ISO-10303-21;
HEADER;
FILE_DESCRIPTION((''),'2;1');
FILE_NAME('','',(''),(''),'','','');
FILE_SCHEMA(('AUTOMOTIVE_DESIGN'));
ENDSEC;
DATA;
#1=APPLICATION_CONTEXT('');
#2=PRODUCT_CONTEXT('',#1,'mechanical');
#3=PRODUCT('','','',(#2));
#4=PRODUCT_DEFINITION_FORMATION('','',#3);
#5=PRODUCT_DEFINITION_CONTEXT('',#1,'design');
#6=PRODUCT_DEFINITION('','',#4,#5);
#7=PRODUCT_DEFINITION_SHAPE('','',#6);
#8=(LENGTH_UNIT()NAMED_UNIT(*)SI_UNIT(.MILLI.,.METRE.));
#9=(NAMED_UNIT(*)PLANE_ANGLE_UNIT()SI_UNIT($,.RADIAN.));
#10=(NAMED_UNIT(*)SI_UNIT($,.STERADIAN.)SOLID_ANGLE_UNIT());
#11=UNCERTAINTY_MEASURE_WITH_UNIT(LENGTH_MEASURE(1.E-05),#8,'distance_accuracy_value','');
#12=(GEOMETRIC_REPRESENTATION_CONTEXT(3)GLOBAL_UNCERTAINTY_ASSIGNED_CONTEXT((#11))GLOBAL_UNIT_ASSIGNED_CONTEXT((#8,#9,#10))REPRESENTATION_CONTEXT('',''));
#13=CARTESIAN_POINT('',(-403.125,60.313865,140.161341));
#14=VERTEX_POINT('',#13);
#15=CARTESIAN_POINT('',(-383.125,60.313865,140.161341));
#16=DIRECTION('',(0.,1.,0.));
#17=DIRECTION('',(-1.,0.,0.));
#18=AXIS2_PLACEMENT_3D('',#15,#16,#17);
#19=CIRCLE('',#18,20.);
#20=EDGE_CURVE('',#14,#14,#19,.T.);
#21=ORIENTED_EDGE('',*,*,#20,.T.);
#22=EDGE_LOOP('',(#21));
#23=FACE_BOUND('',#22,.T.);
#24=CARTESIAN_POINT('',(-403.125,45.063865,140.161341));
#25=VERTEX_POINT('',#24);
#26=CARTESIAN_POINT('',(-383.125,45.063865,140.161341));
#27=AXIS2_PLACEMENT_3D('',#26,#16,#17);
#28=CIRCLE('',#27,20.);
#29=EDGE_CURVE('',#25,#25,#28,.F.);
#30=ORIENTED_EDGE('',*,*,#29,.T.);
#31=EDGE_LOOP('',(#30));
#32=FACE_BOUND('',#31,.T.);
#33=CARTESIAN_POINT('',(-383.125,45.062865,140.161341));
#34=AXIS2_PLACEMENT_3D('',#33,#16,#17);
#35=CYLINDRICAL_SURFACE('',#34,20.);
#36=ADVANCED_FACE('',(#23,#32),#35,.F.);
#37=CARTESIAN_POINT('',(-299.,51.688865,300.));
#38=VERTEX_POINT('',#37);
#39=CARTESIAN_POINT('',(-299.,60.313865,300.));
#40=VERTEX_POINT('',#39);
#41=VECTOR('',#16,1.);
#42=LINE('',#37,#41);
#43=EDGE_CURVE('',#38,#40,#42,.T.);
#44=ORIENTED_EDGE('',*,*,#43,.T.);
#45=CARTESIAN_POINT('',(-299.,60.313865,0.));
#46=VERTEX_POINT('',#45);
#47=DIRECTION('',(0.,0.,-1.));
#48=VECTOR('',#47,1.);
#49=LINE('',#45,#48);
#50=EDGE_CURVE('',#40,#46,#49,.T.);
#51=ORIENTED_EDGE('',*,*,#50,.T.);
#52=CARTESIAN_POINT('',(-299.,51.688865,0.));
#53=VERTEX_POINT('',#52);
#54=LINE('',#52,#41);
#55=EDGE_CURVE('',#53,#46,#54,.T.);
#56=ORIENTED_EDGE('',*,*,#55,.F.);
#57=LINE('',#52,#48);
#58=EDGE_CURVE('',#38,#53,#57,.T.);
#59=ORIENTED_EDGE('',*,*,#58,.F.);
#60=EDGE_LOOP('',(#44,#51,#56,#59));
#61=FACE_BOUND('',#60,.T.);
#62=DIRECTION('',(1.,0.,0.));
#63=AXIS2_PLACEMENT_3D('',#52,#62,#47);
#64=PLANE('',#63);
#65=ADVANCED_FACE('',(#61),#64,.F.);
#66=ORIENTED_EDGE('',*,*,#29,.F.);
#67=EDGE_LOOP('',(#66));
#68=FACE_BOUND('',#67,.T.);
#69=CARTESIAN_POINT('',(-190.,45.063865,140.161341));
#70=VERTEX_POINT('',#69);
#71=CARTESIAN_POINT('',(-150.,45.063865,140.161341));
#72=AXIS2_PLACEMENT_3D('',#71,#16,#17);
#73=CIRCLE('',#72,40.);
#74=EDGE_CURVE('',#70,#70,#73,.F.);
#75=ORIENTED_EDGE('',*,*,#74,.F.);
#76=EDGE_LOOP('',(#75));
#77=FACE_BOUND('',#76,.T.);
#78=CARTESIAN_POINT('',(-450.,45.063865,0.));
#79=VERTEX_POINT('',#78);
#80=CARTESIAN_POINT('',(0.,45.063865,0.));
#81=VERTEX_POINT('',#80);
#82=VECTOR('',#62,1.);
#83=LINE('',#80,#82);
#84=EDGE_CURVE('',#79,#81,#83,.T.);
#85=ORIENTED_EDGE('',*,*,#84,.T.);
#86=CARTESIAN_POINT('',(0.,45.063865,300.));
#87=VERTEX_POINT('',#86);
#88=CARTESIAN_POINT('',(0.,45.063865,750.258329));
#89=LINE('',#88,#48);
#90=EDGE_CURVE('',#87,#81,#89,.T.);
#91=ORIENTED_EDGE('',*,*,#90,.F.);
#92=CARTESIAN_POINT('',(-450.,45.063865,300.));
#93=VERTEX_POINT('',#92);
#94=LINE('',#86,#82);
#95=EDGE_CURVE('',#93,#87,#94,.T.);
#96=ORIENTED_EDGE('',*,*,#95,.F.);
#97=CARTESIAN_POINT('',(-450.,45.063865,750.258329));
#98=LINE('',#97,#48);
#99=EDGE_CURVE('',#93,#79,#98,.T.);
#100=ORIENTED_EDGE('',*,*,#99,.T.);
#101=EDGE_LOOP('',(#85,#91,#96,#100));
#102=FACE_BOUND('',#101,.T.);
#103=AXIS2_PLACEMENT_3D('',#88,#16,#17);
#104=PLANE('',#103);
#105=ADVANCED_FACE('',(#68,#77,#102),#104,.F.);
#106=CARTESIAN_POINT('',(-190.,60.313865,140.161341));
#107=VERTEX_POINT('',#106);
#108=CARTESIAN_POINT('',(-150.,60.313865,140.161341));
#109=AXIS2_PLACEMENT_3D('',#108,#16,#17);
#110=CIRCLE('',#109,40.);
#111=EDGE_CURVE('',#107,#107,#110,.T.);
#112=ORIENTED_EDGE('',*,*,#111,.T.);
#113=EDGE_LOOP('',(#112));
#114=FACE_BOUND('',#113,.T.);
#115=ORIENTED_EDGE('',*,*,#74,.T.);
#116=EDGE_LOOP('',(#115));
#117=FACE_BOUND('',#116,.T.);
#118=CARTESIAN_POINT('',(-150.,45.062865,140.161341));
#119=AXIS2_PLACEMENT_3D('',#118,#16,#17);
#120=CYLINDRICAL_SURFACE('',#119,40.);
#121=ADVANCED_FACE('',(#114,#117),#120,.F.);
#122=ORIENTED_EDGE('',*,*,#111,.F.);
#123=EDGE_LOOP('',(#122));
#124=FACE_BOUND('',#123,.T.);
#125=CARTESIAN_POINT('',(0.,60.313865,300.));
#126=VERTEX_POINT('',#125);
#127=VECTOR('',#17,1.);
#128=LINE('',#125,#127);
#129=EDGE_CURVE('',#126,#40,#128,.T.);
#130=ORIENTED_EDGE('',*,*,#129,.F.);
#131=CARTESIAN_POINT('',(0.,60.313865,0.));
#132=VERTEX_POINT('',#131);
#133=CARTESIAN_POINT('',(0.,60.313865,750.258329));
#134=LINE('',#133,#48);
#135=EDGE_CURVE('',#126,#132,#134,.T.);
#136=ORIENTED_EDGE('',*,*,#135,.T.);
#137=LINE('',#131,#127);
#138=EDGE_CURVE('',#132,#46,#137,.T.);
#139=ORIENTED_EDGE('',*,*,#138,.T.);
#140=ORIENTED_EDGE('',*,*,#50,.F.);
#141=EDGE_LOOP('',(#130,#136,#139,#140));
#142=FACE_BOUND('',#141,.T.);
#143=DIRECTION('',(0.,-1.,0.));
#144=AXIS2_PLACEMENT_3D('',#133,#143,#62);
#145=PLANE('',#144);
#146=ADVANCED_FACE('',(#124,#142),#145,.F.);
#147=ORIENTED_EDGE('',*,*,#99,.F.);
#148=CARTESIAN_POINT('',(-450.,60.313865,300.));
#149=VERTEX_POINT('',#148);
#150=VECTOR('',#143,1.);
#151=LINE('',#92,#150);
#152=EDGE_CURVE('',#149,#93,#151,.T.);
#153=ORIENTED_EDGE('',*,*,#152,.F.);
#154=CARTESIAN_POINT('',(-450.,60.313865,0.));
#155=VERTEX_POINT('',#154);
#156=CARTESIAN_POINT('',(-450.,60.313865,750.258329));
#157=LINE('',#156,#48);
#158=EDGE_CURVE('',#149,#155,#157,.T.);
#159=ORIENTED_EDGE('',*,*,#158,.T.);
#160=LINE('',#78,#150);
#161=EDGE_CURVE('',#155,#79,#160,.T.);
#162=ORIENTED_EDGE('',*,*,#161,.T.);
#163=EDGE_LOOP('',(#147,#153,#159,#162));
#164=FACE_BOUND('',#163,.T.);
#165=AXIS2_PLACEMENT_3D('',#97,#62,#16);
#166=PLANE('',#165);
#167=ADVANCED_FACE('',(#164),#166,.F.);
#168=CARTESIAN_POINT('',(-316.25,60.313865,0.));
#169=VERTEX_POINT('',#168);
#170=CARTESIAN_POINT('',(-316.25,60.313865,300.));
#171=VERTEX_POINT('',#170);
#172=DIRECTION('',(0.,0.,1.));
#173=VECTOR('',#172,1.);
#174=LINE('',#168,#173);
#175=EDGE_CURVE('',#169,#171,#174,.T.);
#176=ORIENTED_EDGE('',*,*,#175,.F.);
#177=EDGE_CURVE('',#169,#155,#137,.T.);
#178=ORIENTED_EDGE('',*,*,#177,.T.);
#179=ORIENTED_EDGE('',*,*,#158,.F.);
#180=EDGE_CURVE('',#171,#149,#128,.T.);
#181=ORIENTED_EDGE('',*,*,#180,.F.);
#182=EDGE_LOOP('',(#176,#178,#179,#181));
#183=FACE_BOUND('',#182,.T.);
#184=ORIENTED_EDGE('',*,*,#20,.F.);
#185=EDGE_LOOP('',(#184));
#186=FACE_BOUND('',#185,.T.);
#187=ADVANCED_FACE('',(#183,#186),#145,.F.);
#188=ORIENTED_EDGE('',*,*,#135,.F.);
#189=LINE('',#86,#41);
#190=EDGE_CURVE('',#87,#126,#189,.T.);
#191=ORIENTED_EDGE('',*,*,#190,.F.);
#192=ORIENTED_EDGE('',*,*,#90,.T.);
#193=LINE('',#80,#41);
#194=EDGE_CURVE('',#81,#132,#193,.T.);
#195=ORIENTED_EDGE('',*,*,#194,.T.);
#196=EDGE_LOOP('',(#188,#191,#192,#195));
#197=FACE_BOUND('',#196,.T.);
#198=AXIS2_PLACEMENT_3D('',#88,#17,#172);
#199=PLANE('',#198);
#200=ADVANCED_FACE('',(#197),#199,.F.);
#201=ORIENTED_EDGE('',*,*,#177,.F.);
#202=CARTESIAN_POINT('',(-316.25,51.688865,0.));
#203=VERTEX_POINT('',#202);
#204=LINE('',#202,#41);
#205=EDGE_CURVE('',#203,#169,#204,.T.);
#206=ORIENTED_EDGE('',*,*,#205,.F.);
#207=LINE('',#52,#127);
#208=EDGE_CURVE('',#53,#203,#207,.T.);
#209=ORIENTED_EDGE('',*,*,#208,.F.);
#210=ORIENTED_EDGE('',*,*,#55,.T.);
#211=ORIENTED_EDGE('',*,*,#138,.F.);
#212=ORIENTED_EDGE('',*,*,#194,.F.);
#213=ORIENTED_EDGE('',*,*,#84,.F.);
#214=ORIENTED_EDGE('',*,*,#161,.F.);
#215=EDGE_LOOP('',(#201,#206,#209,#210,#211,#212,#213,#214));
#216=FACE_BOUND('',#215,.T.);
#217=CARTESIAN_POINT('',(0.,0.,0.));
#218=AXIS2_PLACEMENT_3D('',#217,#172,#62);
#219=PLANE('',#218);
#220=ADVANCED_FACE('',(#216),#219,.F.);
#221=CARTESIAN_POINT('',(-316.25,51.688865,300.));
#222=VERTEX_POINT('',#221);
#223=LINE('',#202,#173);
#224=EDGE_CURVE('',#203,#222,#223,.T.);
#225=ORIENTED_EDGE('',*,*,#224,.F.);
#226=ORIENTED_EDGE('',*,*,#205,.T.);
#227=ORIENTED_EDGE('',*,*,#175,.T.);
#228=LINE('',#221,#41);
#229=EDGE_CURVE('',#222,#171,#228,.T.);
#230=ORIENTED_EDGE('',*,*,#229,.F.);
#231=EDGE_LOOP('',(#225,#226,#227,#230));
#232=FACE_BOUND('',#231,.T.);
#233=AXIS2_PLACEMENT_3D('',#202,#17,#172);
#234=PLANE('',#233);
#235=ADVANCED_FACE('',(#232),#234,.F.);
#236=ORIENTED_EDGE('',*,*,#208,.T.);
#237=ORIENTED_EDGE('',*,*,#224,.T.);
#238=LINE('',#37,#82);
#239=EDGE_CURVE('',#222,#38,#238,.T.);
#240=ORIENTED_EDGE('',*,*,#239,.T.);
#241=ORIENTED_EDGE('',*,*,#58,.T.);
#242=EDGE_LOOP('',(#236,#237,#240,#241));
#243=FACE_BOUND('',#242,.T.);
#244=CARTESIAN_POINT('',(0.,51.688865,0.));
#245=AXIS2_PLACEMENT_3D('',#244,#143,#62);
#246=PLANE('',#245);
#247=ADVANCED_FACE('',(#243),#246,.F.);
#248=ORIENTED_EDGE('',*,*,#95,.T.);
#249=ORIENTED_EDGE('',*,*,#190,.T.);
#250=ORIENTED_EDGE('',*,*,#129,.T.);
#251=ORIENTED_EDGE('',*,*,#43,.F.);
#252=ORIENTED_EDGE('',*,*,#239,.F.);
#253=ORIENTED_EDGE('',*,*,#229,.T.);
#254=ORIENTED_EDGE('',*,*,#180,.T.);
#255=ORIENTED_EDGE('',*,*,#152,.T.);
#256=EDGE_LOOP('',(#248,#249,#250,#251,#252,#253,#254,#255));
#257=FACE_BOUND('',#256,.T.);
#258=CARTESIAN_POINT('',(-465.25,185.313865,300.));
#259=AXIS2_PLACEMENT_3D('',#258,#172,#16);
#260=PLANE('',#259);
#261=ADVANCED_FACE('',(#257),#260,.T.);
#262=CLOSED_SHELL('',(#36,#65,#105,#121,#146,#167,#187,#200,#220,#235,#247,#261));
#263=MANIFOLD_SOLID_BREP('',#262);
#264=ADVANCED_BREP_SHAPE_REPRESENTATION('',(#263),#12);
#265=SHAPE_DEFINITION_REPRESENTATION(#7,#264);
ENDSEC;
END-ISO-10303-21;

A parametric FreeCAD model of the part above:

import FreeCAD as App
import Part
import Sketcher
from FreeCAD import Vector
Q = App.Units.Quantity


def add_polygon(sketch, points):
    """Adds a closed chain of lines whose ends are joined by coincident constraints."""
    first, n = sketch.GeometryCount, len(points)
    for a, b in zip(points, points[1:] + points[:1]):
        sketch.addGeometry(Part.LineSegment(App.Vector(*a, 0), App.Vector(*b, 0)), False)
    for i in range(n):
        sketch.addConstraint(Sketcher.Constraint("Coincident", first + i, 2, first + (i + 1) % n, 1))

doc = App.newDocument("Part")
params = doc.addObject("Spreadsheet::Sheet", "Params")
for row, (alias, value) in enumerate([
    ("sketch1_width", "450 mm"),
    ("sketch1_height", "15.25 mm"),
    ("pad1_length", "300 mm"),
    ("sketch2_height", "300 mm"),
    ("sketch2_width", "17.25 mm"),
    ("pocket1_length", "8.625 mm"),
    ("sketch3_diameter", "80 mm"),
    ("sketch4_diameter", "40 mm"),
], start=1):
    params.set(f"A{row}", alias)
    params.set(f"B{row}", "=" + value)
    params.setAlias(f"B{row}", alias)

body = doc.addObject("PartDesign::Body", "Body")

# Sketch on XY plane
sketch1 = body.newObject("Sketcher::SketchObject", "Sketch")
sketch1.AttachmentSupport = (doc.getObject("XY_Plane"), [""])
sketch1.MapMode = "FlatFace"
add_polygon(sketch1, [(-450, 60), (-450, 45), (0, 45), (0, 60)])  # lines 0-3
sketch1.addConstraint(Sketcher.Constraint("Vertical", 0))
sketch1.addConstraint(Sketcher.Constraint("Horizontal", 1))
sketch1.addConstraint(Sketcher.Constraint("Vertical", 2))
sketch1.addConstraint(Sketcher.Constraint("Horizontal", 3))
sketch1.addConstraint(Sketcher.Constraint("PointOnObject", 1, 2, -2))
sketch1.addConstraint(Sketcher.Constraint("DistanceX", 1, 1, 1, 2, Q("450 mm")))
sketch1.addConstraint(Sketcher.Constraint("DistanceY", 0, 2, 0, 1, Q("15.25 mm")))
sketch1.addConstraint(Sketcher.Constraint("DistanceY", -1, 1, 0, 2, Q("45.063865 mm")))
sketch1.setExpression("Constraints[9]", "Params.sketch1_width")
sketch1.setExpression("Constraints[10]", "Params.sketch1_height")
pad1 = body.newObject("PartDesign::Pad", "Pad")
pad1.Profile = sketch1
pad1.setExpression("Length", "Params.pad1_length")

# Sketch on XZ plane
sketch2 = body.newObject("Sketcher::SketchObject", "Sketch001")
sketch2.AttachmentSupport = (doc.getObject("XZ_Plane"), [""])
sketch2.MapMode = "FlatFace"
sketch2.AttachmentOffset = App.Placement(Vector(0, 0, -60.313865), App.Rotation())
add_polygon(sketch2, [(-316, 0), (-316, 300), (-299, 300), (-299, 0)])  # lines 0-3
sketch2.addConstraint(Sketcher.Constraint("Vertical", 0))
sketch2.addConstraint(Sketcher.Constraint("Horizontal", 1))
sketch2.addConstraint(Sketcher.Constraint("Vertical", 2))
sketch2.addConstraint(Sketcher.Constraint("Horizontal", 3))
sketch2.addConstraint(Sketcher.Constraint("PointOnObject", 2, 2, -1))
sketch2.addConstraint(Sketcher.Constraint("DistanceY", 0, 1, 0, 2, Q("300 mm")))
sketch2.addConstraint(Sketcher.Constraint("DistanceX", 1, 2, -1, 1, Q("299 mm")))
sketch2.addConstraint(Sketcher.Constraint("DistanceX", 1, 1, 1, 2, Q("17.25 mm")))
sketch2.setExpression("Constraints[9]", "Params.sketch2_height")
sketch2.setExpression("Constraints[11]", "Params.sketch2_width")
pocket1 = body.newObject("PartDesign::Pocket", "Pocket")
pocket1.Profile = sketch2
pocket1.setExpression("Length", "Params.pocket1_length")
pocket1.Reversed = True

# Sketch on XZ plane
sketch3 = body.newObject("Sketcher::SketchObject", "Sketch002")
sketch3.AttachmentSupport = (doc.getObject("XZ_Plane"), [""])
sketch3.MapMode = "FlatFace"
sketch3.AttachmentOffset = App.Placement(Vector(0, 0, -60.313865), App.Rotation())
sketch3.addGeometry(Part.Circle(Vector(-150, 140, 0), Vector(0, 0, 1), 40), False)
sketch3.addConstraint(Sketcher.Constraint("Diameter", 0, Q("80 mm")))
sketch3.addConstraint(Sketcher.Constraint("DistanceX", 0, 3, -1, 1, Q("150 mm")))
sketch3.addConstraint(Sketcher.Constraint("DistanceY", -1, 1, 0, 3, Q("140.161341 mm")))
sketch3.setExpression("Constraints[0]", "Params.sketch3_diameter")
pocket2 = body.newObject("PartDesign::Pocket", "Pocket001")
pocket2.Profile = sketch3
pocket2.Type = "UpToFirst"
pocket2.Reversed = True

# Sketch on XZ plane
sketch4 = body.newObject("Sketcher::SketchObject", "Sketch003")
sketch4.AttachmentSupport = (doc.getObject("XZ_Plane"), [""])
sketch4.MapMode = "FlatFace"
sketch4.AttachmentOffset = App.Placement(Vector(0, 0, -60.313865), App.Rotation())
sketch4.addGeometry(Part.Circle(Vector(-383, 140, 0), Vector(0, 0, 1), 20), False)
sketch4.addConstraint(Sketcher.Constraint("Diameter", 0, Q("40 mm")))
sketch4.addConstraint(Sketcher.Constraint("DistanceX", 0, 3, -1, 1, Q("383.125 mm")))
sketch4.addConstraint(Sketcher.Constraint("DistanceY", -1, 1, 0, 3, Q("140.161341 mm")))
sketch4.setExpression("Constraints[0]", "Params.sketch4_diameter")
pocket3 = body.newObject("PartDesign::Pocket", "Pocket002")
pocket3.Profile = sketch4
pocket3.Type = "UpToFirst"
pocket3.Reversed = True

doc.recompute()
